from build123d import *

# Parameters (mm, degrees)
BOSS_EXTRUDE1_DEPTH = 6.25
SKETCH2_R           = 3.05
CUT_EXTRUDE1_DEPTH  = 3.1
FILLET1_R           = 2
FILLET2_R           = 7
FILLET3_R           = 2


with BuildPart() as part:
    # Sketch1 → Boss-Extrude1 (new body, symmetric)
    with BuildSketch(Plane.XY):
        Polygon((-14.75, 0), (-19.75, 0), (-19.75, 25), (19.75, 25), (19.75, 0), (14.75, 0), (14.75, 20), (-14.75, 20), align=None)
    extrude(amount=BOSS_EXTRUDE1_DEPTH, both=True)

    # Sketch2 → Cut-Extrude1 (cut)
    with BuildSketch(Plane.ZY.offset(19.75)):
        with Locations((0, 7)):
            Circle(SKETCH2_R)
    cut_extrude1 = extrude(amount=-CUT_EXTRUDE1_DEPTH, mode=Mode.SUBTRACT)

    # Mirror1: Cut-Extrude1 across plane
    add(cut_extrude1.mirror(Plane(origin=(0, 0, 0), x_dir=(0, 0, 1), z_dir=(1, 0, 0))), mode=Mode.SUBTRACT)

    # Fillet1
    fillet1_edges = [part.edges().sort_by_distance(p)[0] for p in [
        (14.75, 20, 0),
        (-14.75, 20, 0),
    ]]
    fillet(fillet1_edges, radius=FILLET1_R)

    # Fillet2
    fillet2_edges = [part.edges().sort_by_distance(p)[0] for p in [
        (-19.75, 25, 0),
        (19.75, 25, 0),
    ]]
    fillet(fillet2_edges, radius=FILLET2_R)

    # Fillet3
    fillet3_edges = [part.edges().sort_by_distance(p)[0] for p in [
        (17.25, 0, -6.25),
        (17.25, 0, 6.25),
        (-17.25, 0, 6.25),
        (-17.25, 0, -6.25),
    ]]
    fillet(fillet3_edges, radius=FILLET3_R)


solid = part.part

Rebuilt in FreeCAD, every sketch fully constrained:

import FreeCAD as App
import Part
import Sketcher
from FreeCAD import Vector
Q = App.Units.Quantity


def edges_at(feature, points):
    """Names of the edges that pass closest to the given points."""
    edges = feature.Shape.Edges
    near = lambda p: min(range(len(edges)), key=lambda i: edges[i].distToShape(Part.Vertex(*p))[0])
    return sorted({f"Edge{near(p) + 1}" for p in points})


def add_polygon(sketch, points):
    """Adds a closed chain of lines whose ends are joined by coincident constraints."""
    first, n = sketch.GeometryCount, len(points)
    for a, b in zip(points, points[1:] + points[:1]):
        sketch.addGeometry(Part.LineSegment(App.Vector(*a, 0), App.Vector(*b, 0)), False)
    for i in range(n):
        sketch.addConstraint(Sketcher.Constraint("Coincident", first + i, 2, first + (i + 1) % n, 1))

doc = App.newDocument("Part")
body = doc.addObject("PartDesign::Body", "Body")

sketch1 = doc.addObject("Sketcher::SketchObject", "Sketch")
body.addObject(sketch1)
sketch1.AttachmentSupport = (doc.XY_Plane, [""])
sketch1.MapMode = "FlatFace"
add_polygon(sketch1, [(-20, 0), (-15, 0), (-15, 20), (15, 20), (15, 0), (20, 0), (20, 25), (-20, 25)])
sketch1.addConstraint([
    Sketcher.Constraint("Horizontal", 0),
    Sketcher.Constraint("Vertical", 1),
    Sketcher.Constraint("Horizontal", 2),
    Sketcher.Constraint("Vertical", 3),
    Sketcher.Constraint("Horizontal", 4),
    Sketcher.Constraint("Vertical", 5),
    Sketcher.Constraint("Horizontal", 6),
    Sketcher.Constraint("Vertical", 7),
    Sketcher.Constraint("Symmetric", 0, 2, 3, 2, -1, 1),
    Sketcher.Constraint("Symmetric", 4, 2, 7, 2, -2),
    Sketcher.Constraint("DistanceX", 0, 1, 0, 2, Q("5 mm")),
    Sketcher.Constraint("DistanceY", 1, 1, 1, 2, Q("20 mm")),
    Sketcher.Constraint("DistanceY", 5, 1, 5, 2, Q("25 mm")),
    Sketcher.Constraint("DistanceX", 2, 1, 2, 2, Q("29.5 mm")),
])
pad1 = doc.addObject("PartDesign::Pad", "Pad")
body.addObject(pad1)
pad1.Profile = sketch1
pad1.Length = 12.5
pad1.Midplane = True

sketch2 = doc.addObject("Sketcher::SketchObject", "Sketch001")
body.addObject(sketch2)
sketch2.AttachmentSupport = (doc.YZ_Plane, [""])
sketch2.MapMode = "FlatFace"
sketch2.AttachmentOffset = App.Placement(Vector(0, 0, -19.75), App.Rotation())
sketch2.addGeometry(Part.Circle(Vector(7, 0, 0), Vector(0, 0, 1), 3), False)
sketch2.addConstraint([
    Sketcher.Constraint("PointOnObject", 0, 3, -1),
    Sketcher.Constraint("Diameter", 0, Q("6.1 mm")),
    Sketcher.Constraint("DistanceX", -1, 1, 0, 3, Q("7 mm")),
])
pocket1 = doc.addObject("PartDesign::Pocket", "Pocket")
body.addObject(pocket1)
pocket1.Profile = sketch2
pocket1.Length = 3.1
pocket1.Reversed = True
doc.recompute()

mirrored = doc.addObject("PartDesign::Mirrored", "Mirrored")
body.addObject(mirrored)
mirrored.Originals = [pocket1]
mirrored.MirrorPlane = (doc.YZ_Plane, [""])
body.Tip = mirrored
doc.recompute()

fillet = doc.addObject("PartDesign::Fillet", "Fillet")
body.addObject(fillet)
fillet.Base = (mirrored, edges_at(mirrored, [(14.75, 20, 0), (-14.75, 20, 0)]))
fillet.Radius = 2
doc.recompute()

fillet2 = doc.addObject("PartDesign::Fillet", "Fillet001")
body.addObject(fillet2)
fillet2.Base = (fillet, edges_at(fillet, [(-19.75, 25, 0), (19.75, 25, 0)]))
fillet2.Radius = 7
doc.recompute()

fillet3 = doc.addObject("PartDesign::Fillet", "Fillet002")
body.addObject(fillet3)
fillet3.Base = (fillet2, edges_at(fillet2, [
    (17.25, 0, -6.25),
    (17.25, 0, 6.25),
    (-17.25, 0, 6.25),
    (-17.25, 0, -6.25),
]))
fillet3.Radius = 2

doc.recompute()
